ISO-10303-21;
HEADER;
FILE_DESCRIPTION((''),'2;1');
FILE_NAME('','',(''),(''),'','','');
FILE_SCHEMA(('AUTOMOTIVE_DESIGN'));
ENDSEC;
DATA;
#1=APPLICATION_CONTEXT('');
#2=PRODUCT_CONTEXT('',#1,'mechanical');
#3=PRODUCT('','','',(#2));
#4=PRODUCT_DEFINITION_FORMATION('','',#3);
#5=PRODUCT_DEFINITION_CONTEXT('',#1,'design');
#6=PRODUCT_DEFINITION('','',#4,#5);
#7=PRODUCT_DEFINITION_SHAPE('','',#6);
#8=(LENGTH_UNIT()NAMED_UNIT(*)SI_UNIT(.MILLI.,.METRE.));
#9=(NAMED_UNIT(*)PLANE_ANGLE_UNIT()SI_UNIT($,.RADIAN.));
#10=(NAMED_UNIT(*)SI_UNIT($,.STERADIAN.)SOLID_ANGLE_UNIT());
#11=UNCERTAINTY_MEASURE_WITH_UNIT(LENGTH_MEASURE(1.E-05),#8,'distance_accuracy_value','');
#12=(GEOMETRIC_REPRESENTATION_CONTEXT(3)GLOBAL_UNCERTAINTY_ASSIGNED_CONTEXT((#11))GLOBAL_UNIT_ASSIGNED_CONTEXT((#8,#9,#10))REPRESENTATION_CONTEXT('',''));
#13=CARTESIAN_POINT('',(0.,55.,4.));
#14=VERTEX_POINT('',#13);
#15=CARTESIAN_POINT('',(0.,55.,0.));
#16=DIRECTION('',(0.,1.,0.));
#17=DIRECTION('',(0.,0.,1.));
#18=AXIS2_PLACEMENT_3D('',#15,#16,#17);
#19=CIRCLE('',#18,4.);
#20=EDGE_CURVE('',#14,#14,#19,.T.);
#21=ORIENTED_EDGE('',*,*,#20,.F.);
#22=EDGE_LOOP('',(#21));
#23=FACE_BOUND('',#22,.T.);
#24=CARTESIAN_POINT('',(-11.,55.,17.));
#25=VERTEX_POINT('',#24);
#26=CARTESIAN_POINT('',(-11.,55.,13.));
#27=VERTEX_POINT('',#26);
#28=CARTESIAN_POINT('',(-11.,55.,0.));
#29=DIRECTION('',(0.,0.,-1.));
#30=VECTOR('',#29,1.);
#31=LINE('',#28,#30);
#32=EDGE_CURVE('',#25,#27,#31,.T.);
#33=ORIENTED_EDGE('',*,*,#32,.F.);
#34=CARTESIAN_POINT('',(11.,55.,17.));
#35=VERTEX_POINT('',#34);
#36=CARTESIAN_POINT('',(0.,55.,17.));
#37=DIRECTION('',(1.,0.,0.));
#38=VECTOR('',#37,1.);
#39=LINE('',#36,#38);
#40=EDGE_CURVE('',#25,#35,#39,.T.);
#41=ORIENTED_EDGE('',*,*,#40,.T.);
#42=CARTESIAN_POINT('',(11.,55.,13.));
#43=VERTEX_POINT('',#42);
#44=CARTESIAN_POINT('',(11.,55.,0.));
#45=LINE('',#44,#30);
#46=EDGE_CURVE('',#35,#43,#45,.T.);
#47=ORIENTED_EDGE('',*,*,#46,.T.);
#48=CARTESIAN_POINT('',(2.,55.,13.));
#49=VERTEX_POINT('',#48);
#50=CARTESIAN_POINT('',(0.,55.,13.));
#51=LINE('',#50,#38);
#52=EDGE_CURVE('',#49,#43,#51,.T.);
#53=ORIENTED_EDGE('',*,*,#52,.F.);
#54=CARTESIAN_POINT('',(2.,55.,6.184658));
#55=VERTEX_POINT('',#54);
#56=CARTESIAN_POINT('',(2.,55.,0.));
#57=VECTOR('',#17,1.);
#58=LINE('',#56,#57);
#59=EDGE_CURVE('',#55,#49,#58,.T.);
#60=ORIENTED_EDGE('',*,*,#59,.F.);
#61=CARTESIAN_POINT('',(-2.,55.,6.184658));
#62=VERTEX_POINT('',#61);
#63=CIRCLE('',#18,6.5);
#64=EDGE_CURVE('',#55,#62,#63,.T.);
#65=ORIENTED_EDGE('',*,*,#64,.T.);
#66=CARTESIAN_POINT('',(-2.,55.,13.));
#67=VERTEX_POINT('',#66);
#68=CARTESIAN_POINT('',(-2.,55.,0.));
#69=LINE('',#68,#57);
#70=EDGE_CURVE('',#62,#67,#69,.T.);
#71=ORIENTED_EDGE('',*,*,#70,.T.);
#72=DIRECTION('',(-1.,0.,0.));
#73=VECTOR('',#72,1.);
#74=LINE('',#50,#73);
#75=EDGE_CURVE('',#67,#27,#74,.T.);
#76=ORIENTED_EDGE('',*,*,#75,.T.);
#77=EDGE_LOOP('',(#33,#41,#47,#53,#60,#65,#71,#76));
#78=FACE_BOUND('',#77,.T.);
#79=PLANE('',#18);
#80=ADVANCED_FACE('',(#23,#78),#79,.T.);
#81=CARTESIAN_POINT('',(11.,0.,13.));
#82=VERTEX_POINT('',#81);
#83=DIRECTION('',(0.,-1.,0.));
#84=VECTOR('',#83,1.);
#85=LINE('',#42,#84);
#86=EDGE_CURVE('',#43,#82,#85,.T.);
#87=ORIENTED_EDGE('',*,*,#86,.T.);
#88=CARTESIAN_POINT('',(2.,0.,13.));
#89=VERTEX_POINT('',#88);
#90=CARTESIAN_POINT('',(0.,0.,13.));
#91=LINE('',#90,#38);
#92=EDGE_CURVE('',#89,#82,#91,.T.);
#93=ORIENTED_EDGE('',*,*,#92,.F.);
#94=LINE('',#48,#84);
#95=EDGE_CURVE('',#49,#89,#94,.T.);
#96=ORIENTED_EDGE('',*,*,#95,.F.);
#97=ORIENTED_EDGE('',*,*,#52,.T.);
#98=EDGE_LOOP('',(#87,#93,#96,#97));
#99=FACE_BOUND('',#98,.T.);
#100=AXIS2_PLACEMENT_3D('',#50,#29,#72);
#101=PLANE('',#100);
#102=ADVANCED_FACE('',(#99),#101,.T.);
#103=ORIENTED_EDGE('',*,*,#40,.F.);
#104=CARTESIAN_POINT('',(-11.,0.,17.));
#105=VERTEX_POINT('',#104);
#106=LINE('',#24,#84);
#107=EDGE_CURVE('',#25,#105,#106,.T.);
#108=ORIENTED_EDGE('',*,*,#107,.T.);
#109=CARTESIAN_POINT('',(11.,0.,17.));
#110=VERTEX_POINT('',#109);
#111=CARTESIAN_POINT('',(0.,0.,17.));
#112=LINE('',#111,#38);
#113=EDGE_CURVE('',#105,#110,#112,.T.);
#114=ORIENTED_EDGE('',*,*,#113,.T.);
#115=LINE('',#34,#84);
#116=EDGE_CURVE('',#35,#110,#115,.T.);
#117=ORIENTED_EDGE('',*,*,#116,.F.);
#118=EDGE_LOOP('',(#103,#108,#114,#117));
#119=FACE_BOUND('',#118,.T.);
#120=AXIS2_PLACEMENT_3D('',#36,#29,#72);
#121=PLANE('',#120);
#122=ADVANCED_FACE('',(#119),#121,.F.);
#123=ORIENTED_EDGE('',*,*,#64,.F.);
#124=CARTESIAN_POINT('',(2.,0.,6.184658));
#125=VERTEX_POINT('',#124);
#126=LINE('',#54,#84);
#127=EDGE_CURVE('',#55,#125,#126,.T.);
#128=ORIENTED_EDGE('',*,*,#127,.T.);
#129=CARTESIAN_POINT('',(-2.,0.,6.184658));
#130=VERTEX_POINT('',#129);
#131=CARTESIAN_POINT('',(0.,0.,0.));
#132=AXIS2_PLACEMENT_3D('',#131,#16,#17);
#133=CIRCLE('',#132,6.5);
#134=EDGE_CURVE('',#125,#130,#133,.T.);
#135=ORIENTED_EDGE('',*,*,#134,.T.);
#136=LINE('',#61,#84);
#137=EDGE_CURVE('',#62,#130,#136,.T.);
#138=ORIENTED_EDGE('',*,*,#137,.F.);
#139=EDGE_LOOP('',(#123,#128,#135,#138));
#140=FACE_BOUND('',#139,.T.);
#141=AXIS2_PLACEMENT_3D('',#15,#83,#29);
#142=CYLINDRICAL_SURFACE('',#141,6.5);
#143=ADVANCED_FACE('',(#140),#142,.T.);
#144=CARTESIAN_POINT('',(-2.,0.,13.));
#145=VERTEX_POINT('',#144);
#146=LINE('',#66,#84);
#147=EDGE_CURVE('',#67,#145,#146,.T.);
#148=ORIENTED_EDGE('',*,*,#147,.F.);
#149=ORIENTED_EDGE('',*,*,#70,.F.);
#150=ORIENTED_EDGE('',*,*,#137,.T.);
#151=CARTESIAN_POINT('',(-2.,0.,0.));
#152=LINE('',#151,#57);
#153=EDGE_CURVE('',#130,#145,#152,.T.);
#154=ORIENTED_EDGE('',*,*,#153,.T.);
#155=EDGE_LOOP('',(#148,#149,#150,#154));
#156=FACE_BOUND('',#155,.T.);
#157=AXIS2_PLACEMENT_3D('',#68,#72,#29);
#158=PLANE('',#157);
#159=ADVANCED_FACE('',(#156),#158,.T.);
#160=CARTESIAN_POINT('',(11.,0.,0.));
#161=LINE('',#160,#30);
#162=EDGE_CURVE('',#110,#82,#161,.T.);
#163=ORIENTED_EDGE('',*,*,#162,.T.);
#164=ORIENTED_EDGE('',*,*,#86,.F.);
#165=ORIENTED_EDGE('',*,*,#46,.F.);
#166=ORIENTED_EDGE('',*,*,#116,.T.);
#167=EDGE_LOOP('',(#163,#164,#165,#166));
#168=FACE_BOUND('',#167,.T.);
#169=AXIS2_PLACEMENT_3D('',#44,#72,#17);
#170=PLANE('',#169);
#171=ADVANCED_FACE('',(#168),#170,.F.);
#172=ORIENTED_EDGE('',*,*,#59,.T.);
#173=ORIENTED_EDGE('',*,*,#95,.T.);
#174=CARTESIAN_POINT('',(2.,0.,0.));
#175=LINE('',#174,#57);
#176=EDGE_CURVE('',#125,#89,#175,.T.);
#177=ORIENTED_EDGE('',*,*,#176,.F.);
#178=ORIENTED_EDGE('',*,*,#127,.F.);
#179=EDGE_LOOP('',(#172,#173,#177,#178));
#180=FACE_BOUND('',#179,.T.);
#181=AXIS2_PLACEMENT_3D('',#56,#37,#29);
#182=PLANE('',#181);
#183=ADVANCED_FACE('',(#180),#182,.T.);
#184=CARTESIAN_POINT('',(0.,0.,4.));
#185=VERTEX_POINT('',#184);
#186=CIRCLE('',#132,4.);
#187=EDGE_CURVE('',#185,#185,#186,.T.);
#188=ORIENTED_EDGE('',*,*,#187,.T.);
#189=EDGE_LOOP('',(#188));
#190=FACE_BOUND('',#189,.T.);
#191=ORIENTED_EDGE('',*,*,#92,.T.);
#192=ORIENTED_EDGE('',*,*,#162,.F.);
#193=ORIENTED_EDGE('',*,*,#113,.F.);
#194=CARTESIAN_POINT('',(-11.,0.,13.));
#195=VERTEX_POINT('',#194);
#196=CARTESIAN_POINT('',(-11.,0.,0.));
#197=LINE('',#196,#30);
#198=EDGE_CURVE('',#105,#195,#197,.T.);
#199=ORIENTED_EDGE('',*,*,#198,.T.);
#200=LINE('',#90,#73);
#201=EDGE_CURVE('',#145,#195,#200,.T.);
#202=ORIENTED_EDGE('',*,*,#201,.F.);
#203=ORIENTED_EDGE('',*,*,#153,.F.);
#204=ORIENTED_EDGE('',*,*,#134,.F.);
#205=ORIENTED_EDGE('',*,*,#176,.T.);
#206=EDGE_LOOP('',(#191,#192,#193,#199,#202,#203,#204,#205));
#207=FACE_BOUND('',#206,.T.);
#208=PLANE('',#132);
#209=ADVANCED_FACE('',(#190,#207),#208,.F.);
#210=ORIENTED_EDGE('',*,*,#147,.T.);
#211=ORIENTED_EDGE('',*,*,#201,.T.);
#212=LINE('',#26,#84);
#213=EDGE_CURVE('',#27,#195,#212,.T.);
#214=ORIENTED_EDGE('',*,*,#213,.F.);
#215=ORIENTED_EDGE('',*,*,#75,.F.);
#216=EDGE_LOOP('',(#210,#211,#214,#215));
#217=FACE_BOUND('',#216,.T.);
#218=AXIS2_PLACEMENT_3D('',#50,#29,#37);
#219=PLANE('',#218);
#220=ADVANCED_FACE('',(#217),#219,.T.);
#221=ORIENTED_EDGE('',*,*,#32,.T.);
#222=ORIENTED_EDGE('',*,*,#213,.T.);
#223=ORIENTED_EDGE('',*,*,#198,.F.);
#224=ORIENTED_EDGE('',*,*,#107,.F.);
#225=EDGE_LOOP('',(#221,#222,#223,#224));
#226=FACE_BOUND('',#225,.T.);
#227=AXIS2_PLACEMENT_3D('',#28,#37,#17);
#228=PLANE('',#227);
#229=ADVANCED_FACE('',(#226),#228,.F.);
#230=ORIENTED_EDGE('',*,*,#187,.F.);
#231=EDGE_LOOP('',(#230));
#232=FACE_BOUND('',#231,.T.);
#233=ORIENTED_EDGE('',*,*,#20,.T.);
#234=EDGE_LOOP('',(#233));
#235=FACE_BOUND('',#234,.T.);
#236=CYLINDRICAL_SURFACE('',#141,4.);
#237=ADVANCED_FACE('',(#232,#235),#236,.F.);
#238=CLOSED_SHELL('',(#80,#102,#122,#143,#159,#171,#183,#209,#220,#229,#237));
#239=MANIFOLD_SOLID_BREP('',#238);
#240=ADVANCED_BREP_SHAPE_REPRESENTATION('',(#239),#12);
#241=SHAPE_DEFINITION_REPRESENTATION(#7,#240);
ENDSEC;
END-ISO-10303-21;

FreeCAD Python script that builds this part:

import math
import FreeCAD as App
import Part
import Sketcher

V = App.Vector
Q = App.Units.Quantity

doc = App.newDocument("Part")
params = doc.addObject("Spreadsheet::Sheet", "Params")
for row, (alias, value) in enumerate([
    ("sketch1_radius", "4 mm"),
    ("sketch1_radius2", "6.5 mm"),
    ("sketch1_width", "11 mm"),
    ("sketch1_width2", "9 mm"),
    ("sketch1_height", "13 mm"),
    ("pad1_length", "55 mm"),
], start=1):
    params.set(f"A{row}", alias)
    params.set(f"B{row}", "=" + value)
    params.setAlias(f"B{row}", alias)

body = doc.addObject("PartDesign::Body", "Body")

# Sketch on XZ plane
sketch1 = body.newObject("Sketcher::SketchObject", "Sketch")
sketch1.AttachmentSupport = (doc.getObject("XZ_Plane"), [""])
sketch1.MapMode = "FlatFace"
sketch1.addGeometry([
    Part.ArcOfCircle(Part.Circle(V(0, 0, 0), V(0, 0, 1), 6.5), math.radians(-90), math.radians(0)),  # 0
    Part.LineSegment(V(0, -6.5, 0), V(0, -4, 0)),  # 1
    Part.ArcOfCircle(Part.Circle(V(0, 0, 0), V(0, 0, 1), 4), math.radians(-90), math.radians(0)),  # 2
    Part.ArcOfCircle(Part.Circle(V(0, 0, 0), V(0, 0, 1), 4), math.radians(0), math.radians(60)),  # 3
    Part.ArcOfCircle(Part.Circle(V(0, 0, 0), V(0, 0, 1), 4), math.radians(60), math.radians(90)),  # 4
    Part.LineSegment(V(0, 4, 0), V(0, 17, 0)),  # 5
    Part.LineSegment(V(0, 17, 0), V(11, 17, 0)),  # 6
    Part.LineSegment(V(11, 17, 0), V(11, 13, 0)),  # 7
    Part.LineSegment(V(11, 13, 0), V(2, 13, 0)),  # 8
    Part.LineSegment(V(2, 13, 0), V(2, 6.2, 0)),  # 9
    Part.ArcOfCircle(Part.Circle(V(0, 0, 0), V(0, 0, 1), 6.5), math.radians(0), math.radians(72)),  # 10
], False)
sketch1.addConstraint([
    Sketcher.Constraint("Coincident", 0, 1, 1, 1),
    Sketcher.Constraint("Coincident", 1, 2, 2, 1),
    Sketcher.Constraint("Tangent", 2, 2, 3, 1),
    Sketcher.Constraint("Tangent", 3, 2, 4, 1),
    Sketcher.Constraint("Coincident", 4, 2, 5, 1),
    Sketcher.Constraint("Coincident", 5, 2, 6, 1),
    Sketcher.Constraint("Coincident", 6, 2, 7, 1),
    Sketcher.Constraint("Coincident", 7, 2, 8, 1),
    Sketcher.Constraint("Coincident", 8, 2, 9, 1),
    Sketcher.Constraint("Coincident", 9, 2, 10, 2),
    Sketcher.Constraint("Tangent", 10, 1, 0, 2),
    Sketcher.Constraint("Vertical", 1),
    Sketcher.Constraint("Vertical", 5),
    Sketcher.Constraint("Horizontal", 6),
    Sketcher.Constraint("Vertical", 7),
    Sketcher.Constraint("Horizontal", 8),
    Sketcher.Constraint("Vertical", 9),
    Sketcher.Constraint("Coincident", 0, 3, -1, 1),
    Sketcher.Constraint("Coincident", 2, 3, -1, 1),
    Sketcher.Constraint("Coincident", 4, 3, -1, 1),
    Sketcher.Constraint("Equal", 0, 10),
    Sketcher.Constraint("PointOnObject", 0, 1, -2),
    Sketcher.Constraint("PointOnObject", 2, 2, -1),
    Sketcher.Constraint("PointOnObject", 4, 2, -2),
    Sketcher.Constraint("PointOnObject", 10, 1, -1),
    Sketcher.Constraint("Vertical", 3, 2, 8, 2),
    Sketcher.Constraint("Radius", 2, Q("4 mm")),
    Sketcher.Constraint("Radius", 0, Q("6.5 mm")),
    Sketcher.Constraint("DistanceX", 6, 1, 6, 2, Q("11 mm")),
    Sketcher.Constraint("DistanceX", 8, 2, 8, 1, Q("9 mm")),
    Sketcher.Constraint("DistanceY", 5, 1, 5, 2, Q("13 mm")),
    Sketcher.Constraint("DistanceY", 7, 2, 7, 1, Q("4 mm")),
])
sketch1.setExpression("Constraints[26]", "Params.sketch1_radius")
sketch1.setExpression("Constraints[27]", "Params.sketch1_radius2")
sketch1.setExpression("Constraints[28]", "Params.sketch1_width")
sketch1.setExpression("Constraints[29]", "Params.sketch1_width2")
sketch1.setExpression("Constraints[30]", "Params.sketch1_height")
pad1 = body.newObject("PartDesign::Pad", "Pad")
pad1.Profile = sketch1
pad1.setExpression("Length", "Params.pad1_length")
pad1.Reversed = True
body2 = doc.addObject("PartDesign::Body", "Body001")
doc.recompute()

body2.BaseFeature = body
doc.recompute()

mirroring = doc.addObject("Part::Mirroring", "Mirroring")
mirroring.Source = body
mirroring.Base = V(0, 55, 0)
mirroring.Normal = V(1, 0, 0)
body3 = doc.addObject("PartDesign::Body", "Body002")
body3.BaseFeature = mirroring
boolean = body2.newObject("PartDesign::Boolean", "Boolean")
boolean.Type = "Fuse"
boolean.addObjects([body3])
doc.recompute()
mirroring.Visibility = False

doc.recompute()
